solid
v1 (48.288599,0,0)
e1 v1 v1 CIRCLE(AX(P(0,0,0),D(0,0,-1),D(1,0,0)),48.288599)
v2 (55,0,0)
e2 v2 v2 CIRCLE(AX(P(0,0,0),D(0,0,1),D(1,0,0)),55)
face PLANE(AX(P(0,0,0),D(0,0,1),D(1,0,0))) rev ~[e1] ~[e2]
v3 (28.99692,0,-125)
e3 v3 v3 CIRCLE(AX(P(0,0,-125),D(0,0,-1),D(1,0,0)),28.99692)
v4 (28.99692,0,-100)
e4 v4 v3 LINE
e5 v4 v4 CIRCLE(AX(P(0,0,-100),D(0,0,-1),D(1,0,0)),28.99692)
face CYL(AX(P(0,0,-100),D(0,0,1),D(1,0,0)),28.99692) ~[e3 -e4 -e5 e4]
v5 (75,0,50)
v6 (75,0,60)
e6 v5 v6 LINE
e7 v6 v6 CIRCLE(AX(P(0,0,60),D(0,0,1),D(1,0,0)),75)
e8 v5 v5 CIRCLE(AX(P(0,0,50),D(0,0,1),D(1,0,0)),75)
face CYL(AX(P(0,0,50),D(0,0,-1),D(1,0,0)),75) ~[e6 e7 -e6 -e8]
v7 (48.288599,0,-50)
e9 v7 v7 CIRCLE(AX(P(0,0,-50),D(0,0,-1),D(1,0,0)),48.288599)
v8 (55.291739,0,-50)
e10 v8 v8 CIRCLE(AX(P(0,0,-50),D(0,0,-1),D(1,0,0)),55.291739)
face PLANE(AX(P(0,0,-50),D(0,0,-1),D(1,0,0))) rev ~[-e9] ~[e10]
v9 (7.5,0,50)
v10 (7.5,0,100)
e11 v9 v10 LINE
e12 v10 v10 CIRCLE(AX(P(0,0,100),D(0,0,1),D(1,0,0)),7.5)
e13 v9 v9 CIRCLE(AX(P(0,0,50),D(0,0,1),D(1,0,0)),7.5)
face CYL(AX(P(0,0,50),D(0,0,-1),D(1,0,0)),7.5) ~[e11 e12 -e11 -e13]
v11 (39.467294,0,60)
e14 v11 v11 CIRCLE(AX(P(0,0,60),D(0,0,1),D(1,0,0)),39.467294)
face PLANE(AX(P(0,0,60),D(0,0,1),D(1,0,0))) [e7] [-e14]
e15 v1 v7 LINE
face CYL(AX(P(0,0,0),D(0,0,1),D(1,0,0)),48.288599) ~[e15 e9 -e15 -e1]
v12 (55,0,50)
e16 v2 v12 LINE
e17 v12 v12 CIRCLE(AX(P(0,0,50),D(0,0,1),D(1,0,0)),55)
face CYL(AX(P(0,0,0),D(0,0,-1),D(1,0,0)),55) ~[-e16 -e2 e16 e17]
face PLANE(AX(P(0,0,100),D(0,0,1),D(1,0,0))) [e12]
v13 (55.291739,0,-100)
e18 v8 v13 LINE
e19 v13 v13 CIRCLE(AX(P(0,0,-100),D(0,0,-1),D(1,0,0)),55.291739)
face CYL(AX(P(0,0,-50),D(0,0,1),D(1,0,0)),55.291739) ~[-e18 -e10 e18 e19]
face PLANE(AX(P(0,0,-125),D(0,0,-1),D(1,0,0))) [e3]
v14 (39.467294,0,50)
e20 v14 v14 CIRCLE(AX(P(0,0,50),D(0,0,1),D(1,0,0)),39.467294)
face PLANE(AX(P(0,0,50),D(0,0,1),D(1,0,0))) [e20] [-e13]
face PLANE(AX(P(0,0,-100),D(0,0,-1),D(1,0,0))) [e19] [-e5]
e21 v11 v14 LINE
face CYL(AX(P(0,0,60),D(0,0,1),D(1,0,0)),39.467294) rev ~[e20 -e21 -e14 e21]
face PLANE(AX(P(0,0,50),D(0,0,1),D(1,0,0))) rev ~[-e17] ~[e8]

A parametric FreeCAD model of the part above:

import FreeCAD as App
import Part
import Sketcher
from FreeCAD import Vector
Q = App.Units.Quantity

doc = App.newDocument("Part")
params = doc.addObject("Spreadsheet::Sheet", "Params")
for row, (alias, value) in enumerate([
    ("sketch1_diameter", "110 mm"),
    ("pad1_length", "50 mm"),
    ("sketch2_diameter", "150 mm"),
    ("pad2_length", "10 mm"),
    ("pad3_length", "50 mm"),
    ("pad4_length", "50 mm"),
    ("pocket1_length", "10 mm"),
    ("sketch6_diameter", "15 mm"),
    ("pad5_length", "50 mm"),
    ("pad6_length", "25 mm"),
], start=1):
    params.set(f"A{row}", alias)
    params.set(f"B{row}", "=" + value)
    params.setAlias(f"B{row}", alias)

body = doc.addObject("PartDesign::Body", "Body")

# Sketch on XY plane
sketch1 = doc.addObject("Sketcher::SketchObject", "Sketch")
body.addObject(sketch1)
sketch1.AttachmentSupport = (doc.XY_Plane, [""])
sketch1.MapMode = "FlatFace"
sketch1.addGeometry(Part.Circle(Vector(0, 0, 0), Vector(0, 0, 1), 55), False)
sketch1.addConstraint([
    Sketcher.Constraint("Coincident", 0, 3, -1, 1),
    Sketcher.Constraint("Diameter", 0, Q("110 mm")),
])
sketch1.setExpression("Constraints[1]", "Params.sketch1_diameter")
pad1 = doc.addObject("PartDesign::Pad", "Pad")
body.addObject(pad1)
pad1.Profile = sketch1
pad1.setExpression("Length", "Params.pad1_length")

# Sketch on XY plane
sketch2 = doc.addObject("Sketcher::SketchObject", "Sketch001")
body.addObject(sketch2)
sketch2.AttachmentSupport = (doc.XY_Plane, [""])
sketch2.MapMode = "FlatFace"
sketch2.AttachmentOffset = App.Placement(Vector(0, 0, 50), App.Rotation())
sketch2.addGeometry(Part.Circle(Vector(0, 0, 0), Vector(0, 0, 1), 75), False)
sketch2.addConstraint([
    Sketcher.Constraint("Coincident", 0, 3, -1, 1),
    Sketcher.Constraint("Diameter", 0, Q("150 mm")),
])
sketch2.setExpression("Constraints[1]", "Params.sketch2_diameter")
pad2 = doc.addObject("PartDesign::Pad", "Pad001")
body.addObject(pad2)
pad2.Profile = sketch2
pad2.setExpression("Length", "Params.pad2_length")

# Sketch on XY plane
sketch3 = doc.addObject("Sketcher::SketchObject", "Sketch002")
body.addObject(sketch3)
sketch3.AttachmentSupport = (doc.XY_Plane, [""])
sketch3.MapMode = "FlatFace"
sketch3.addGeometry(Part.Circle(Vector(0, 0, 0), Vector(0, 0, 1), 48), False)
sketch3.addConstraint([
    Sketcher.Constraint("Coincident", 0, 3, -1, 1),
    Sketcher.Constraint("Diameter", 0, Q("96.577198 mm")),
])
pad3 = doc.addObject("PartDesign::Pad", "Pad002")
body.addObject(pad3)
pad3.Profile = sketch3
pad3.setExpression("Length", "Params.pad3_length")
pad3.Reversed = True

# Sketch on XY plane
sketch4 = doc.addObject("Sketcher::SketchObject", "Sketch003")
body.addObject(sketch4)
sketch4.AttachmentSupport = (doc.XY_Plane, [""])
sketch4.MapMode = "FlatFace"
sketch4.AttachmentOffset = App.Placement(Vector(0, 0, -50), App.Rotation())
sketch4.addGeometry(Part.Circle(Vector(0, 0, 0), Vector(0, 0, 1), 55), False)
sketch4.addConstraint([
    Sketcher.Constraint("Coincident", 0, 3, -1, 1),
    Sketcher.Constraint("Diameter", 0, Q("110.583478 mm")),
])
pad4 = doc.addObject("PartDesign::Pad", "Pad003")
body.addObject(pad4)
pad4.Profile = sketch4
pad4.setExpression("Length", "Params.pad4_length")
pad4.Reversed = True

# Sketch on XY plane
sketch5 = doc.addObject("Sketcher::SketchObject", "Sketch004")
body.addObject(sketch5)
sketch5.AttachmentSupport = (doc.XY_Plane, [""])
sketch5.MapMode = "FlatFace"
sketch5.AttachmentOffset = App.Placement(Vector(0, 0, 60), App.Rotation())
sketch5.addGeometry(Part.Circle(Vector(0, 0, 0), Vector(0, 0, 1), 39), False)
sketch5.addConstraint([
    Sketcher.Constraint("Coincident", 0, 3, -1, 1),
    Sketcher.Constraint("Diameter", 0, Q("78.934588 mm")),
])
pocket1 = doc.addObject("PartDesign::Pocket", "Pocket")
body.addObject(pocket1)
pocket1.Profile = sketch5
pocket1.setExpression("Length", "Params.pocket1_length")

# Sketch on XY plane
sketch6 = doc.addObject("Sketcher::SketchObject", "Sketch005")
body.addObject(sketch6)
sketch6.AttachmentSupport = (doc.XY_Plane, [""])
sketch6.MapMode = "FlatFace"
sketch6.AttachmentOffset = App.Placement(Vector(0, 0, 50), App.Rotation())
sketch6.addGeometry(Part.Circle(Vector(0, 0, 0), Vector(0, 0, 1), 8), False)
sketch6.addConstraint([
    Sketcher.Constraint("Coincident", 0, 3, -1, 1),
    Sketcher.Constraint("Diameter", 0, Q("15 mm")),
])
sketch6.setExpression("Constraints[1]", "Params.sketch6_diameter")
pad5 = doc.addObject("PartDesign::Pad", "Pad004")
body.addObject(pad5)
pad5.Profile = sketch6
pad5.setExpression("Length", "Params.pad5_length")

# Sketch on XY plane
sketch7 = doc.addObject("Sketcher::SketchObject", "Sketch006")
body.addObject(sketch7)
sketch7.AttachmentSupport = (doc.XY_Plane, [""])
sketch7.MapMode = "FlatFace"
sketch7.AttachmentOffset = App.Placement(Vector(0, 0, -100), App.Rotation())
sketch7.addGeometry(Part.Circle(Vector(0, 0, 0), Vector(0, 0, 1), 29), False)
sketch7.addConstraint([
    Sketcher.Constraint("Coincident", 0, 3, -1, 1),
    Sketcher.Constraint("Diameter", 0, Q("57.99384 mm")),
])
pad6 = doc.addObject("PartDesign::Pad", "Pad005")
body.addObject(pad6)
pad6.Profile = sketch7
pad6.setExpression("Length", "Params.pad6_length")
pad6.Reversed = True

doc.recompute()
